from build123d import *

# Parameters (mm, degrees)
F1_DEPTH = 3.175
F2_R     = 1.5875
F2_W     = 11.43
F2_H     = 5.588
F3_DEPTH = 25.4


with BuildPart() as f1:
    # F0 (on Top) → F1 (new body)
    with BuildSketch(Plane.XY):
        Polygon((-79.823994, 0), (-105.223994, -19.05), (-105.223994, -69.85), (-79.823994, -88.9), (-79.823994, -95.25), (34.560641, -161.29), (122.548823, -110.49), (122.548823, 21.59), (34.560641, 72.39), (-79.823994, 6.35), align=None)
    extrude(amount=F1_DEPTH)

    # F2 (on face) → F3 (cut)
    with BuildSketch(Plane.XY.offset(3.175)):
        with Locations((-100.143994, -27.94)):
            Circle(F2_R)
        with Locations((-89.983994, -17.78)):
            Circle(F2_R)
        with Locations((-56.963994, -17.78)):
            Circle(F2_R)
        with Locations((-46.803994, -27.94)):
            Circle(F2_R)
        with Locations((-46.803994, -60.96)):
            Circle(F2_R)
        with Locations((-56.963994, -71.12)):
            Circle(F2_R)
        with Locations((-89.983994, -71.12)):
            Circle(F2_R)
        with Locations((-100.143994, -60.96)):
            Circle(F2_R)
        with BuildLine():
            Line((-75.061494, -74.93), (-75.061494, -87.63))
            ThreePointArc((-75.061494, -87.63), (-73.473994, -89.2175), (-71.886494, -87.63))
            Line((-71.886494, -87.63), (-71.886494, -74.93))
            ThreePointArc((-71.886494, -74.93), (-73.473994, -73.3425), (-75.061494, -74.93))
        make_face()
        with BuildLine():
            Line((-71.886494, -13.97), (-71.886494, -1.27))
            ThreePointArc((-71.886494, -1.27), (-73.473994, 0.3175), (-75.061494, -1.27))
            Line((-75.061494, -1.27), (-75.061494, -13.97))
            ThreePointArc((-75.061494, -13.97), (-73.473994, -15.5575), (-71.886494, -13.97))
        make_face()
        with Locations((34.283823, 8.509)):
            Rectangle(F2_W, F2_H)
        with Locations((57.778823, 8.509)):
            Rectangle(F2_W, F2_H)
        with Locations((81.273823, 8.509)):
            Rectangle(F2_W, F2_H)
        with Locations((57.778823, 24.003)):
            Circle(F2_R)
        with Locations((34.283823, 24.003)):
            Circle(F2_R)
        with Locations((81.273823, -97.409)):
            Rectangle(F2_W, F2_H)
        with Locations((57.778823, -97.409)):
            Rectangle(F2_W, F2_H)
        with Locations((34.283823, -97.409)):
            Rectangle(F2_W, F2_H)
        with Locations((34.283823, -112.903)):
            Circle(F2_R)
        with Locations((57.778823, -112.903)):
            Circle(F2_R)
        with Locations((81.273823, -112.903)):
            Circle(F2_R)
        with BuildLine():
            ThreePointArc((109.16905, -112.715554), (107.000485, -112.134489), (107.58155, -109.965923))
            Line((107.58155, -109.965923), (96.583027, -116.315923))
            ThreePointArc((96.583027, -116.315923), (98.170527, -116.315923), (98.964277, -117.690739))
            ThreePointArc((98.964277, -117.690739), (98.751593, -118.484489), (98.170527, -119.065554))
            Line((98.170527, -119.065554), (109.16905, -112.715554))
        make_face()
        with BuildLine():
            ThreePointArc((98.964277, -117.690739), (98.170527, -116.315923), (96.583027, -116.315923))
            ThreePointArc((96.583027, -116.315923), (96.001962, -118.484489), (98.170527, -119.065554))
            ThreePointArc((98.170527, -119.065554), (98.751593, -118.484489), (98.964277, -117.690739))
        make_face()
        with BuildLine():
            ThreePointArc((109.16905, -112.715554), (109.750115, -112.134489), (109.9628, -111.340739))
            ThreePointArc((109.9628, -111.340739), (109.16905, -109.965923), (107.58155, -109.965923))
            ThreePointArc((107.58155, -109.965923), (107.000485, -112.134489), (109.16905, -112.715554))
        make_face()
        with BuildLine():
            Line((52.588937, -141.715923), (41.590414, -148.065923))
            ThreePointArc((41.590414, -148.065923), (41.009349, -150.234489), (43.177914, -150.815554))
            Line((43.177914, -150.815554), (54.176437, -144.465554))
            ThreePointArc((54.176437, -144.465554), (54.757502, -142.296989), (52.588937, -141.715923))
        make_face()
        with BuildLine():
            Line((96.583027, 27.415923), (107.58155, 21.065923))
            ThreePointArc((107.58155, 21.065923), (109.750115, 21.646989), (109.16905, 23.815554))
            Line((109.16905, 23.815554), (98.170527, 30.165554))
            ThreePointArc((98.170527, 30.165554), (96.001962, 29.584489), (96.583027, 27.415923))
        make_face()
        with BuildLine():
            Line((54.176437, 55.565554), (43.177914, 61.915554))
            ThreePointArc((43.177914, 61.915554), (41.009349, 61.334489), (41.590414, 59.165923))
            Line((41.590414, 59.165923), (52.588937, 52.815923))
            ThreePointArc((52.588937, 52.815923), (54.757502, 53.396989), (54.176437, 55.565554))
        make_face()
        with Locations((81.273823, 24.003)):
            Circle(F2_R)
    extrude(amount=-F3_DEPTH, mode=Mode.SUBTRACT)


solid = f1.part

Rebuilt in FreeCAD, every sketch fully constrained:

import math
import FreeCAD as App
import Part
import Sketcher
Q = App.Units.Quantity

doc = App.newDocument("Part")
body = doc.addObject("PartDesign::Body", "Body")

# Sketch on XY plane
sketch1 = body.newObject("Sketcher::SketchObject", "Sketch")
sketch1.AttachmentSupport = (doc.getObject("XY_Plane"), [""])
sketch1.MapMode = "FlatFace"
sketch1.addGeometry(Part.LineSegment(App.Vector(-80, 0, 0), App.Vector(-105, -19, 0)), False)
sketch1.addGeometry(Part.LineSegment(App.Vector(-105, -19, 0), App.Vector(-105, -70, 0)), False)
sketch1.addGeometry(Part.LineSegment(App.Vector(-105, -70, 0), App.Vector(-80, -89, 0)), False)
sketch1.addGeometry(Part.LineSegment(App.Vector(-80, -89, 0), App.Vector(-80, -95, 0)), False)
sketch1.addGeometry(Part.LineSegment(App.Vector(-80, -95, 0), App.Vector(35, -161, 0)), False)
sketch1.addGeometry(Part.LineSegment(App.Vector(35, -161, 0), App.Vector(123, -110, 0)), False)
sketch1.addGeometry(Part.LineSegment(App.Vector(123, -110, 0), App.Vector(123, 22, 0)), False)
sketch1.addGeometry(Part.LineSegment(App.Vector(123, 22, 0), App.Vector(35, 72, 0)), False)
sketch1.addGeometry(Part.LineSegment(App.Vector(35, 72, 0), App.Vector(-80, 6, 0)), False)
sketch1.addGeometry(Part.LineSegment(App.Vector(-80, 6, 0), App.Vector(-80, 0, 0)), False)
sketch1.addConstraint(Sketcher.Constraint("Coincident", 0, 2, 1, 1))
sketch1.addConstraint(Sketcher.Constraint("Coincident", 1, 2, 2, 1))
sketch1.addConstraint(Sketcher.Constraint("Coincident", 2, 2, 3, 1))
sketch1.addConstraint(Sketcher.Constraint("Coincident", 3, 2, 4, 1))
sketch1.addConstraint(Sketcher.Constraint("Coincident", 4, 2, 5, 1))
sketch1.addConstraint(Sketcher.Constraint("Coincident", 5, 2, 6, 1))
sketch1.addConstraint(Sketcher.Constraint("Coincident", 6, 2, 7, 1))
sketch1.addConstraint(Sketcher.Constraint("Coincident", 7, 2, 8, 1))
sketch1.addConstraint(Sketcher.Constraint("Coincident", 8, 2, 9, 1))
sketch1.addConstraint(Sketcher.Constraint("Coincident", 9, 2, 0, 1))
sketch1.addConstraint(Sketcher.Constraint("Vertical", 1))
sketch1.addConstraint(Sketcher.Constraint("Vertical", 3))
sketch1.addConstraint(Sketcher.Constraint("Vertical", 6))
sketch1.addConstraint(Sketcher.Constraint("Vertical", 9))
sketch1.addConstraint(Sketcher.Constraint("PointOnObject", 9, 2, -1))
sketch1.addConstraint(Sketcher.Constraint("Parallel", 4, 7))
sketch1.addConstraint(Sketcher.Constraint("Parallel", 5, 8))
sketch1.addConstraint(Sketcher.Constraint("Vertical", 4, 2, 7, 2))
sketch1.addConstraint(Sketcher.Constraint("Vertical", 3, 2, 8, 2))
sketch1.addConstraint(Sketcher.Constraint("Equal", 3, 9))
sketch1.addConstraint(Sketcher.Constraint("Equal", 0, 2))
sketch1.addConstraint(Sketcher.Constraint("Equal", 5, 7))
sketch1.addConstraint(Sketcher.Constraint("DistanceY", 1, 2, 1, 1, Q("2 in")))
sketch1.addConstraint(Sketcher.Constraint("Distance", 5, Q("4 in")))
sketch1.addConstraint(Sketcher.Constraint("DistanceY", 6, 1, 6, 2, Q("5.2 in")))
sketch1.addConstraint(Sketcher.Constraint("Angle", 4, Q("-30 deg")))
sketch1.addConstraint(Sketcher.Constraint("DistanceX", 1, 2, 2, 2, Q("1 in")))
sketch1.addConstraint(Sketcher.Constraint("DistanceY", 3, 2, 1, 2, Q("1 in")))
sketch1.addConstraint(Sketcher.Constraint("DistanceY", 3, 2, 3, 1, Q("0.25 in")))
sketch1.addConstraint(Sketcher.Constraint("DistanceX", -1, 1, 4, 2, 34.560641))
pad1 = body.newObject("PartDesign::Pad", "Pad")
pad1.Profile = sketch1
pad1.Length = Q("0.125 in")

# Sketch on XY plane
sketch2 = body.newObject("Sketcher::SketchObject", "Sketch001")
sketch2.AttachmentSupport = (doc.getObject("XY_Plane"), [""])
sketch2.MapMode = "FlatFace"
sketch2.AttachmentOffset = App.Placement(App.Vector(0, 0, 0.125 * 25.4), App.Rotation())
sketch2.addGeometry(Part.Circle(App.Vector(-100.1, -27.9, 0), App.Vector(0, 0, 1), 1.6), False)
sketch2.addGeometry(Part.Circle(App.Vector(-90, -17.8, 0), App.Vector(0, 0, 1), 1.6), False)
sketch2.addGeometry(Part.Circle(App.Vector(-57, -17.8, 0), App.Vector(0, 0, 1), 1.6), False)
sketch2.addGeometry(Part.Circle(App.Vector(-46.8, -27.9, 0), App.Vector(0, 0, 1), 1.6), False)
sketch2.addGeometry(Part.Circle(App.Vector(-46.8, -61, 0), App.Vector(0, 0, 1), 1.6), False)
sketch2.addGeometry(Part.Circle(App.Vector(-57, -71.1, 0), App.Vector(0, 0, 1), 1.6), False)
sketch2.addGeometry(Part.Circle(App.Vector(-90, -71.1, 0), App.Vector(0, 0, 1), 1.6), False)
sketch2.addGeometry(Part.Circle(App.Vector(-100.1, -61, 0), App.Vector(0, 0, 1), 1.6), False)
sketch2.addGeometry(Part.LineSegment(App.Vector(-75.1, -74.9, 0), App.Vector(-75.1, -87.6, 0)), False)
sketch2.addGeometry(Part.ArcOfCircle(Part.Circle(App.Vector(-73.5, -87.6, 0), App.Vector(0, 0, 1), 1.6), math.radians(180), math.radians(360)), False)
sketch2.addGeometry(Part.LineSegment(App.Vector(-71.9, -87.6, 0), App.Vector(-71.9, -74.9, 0)), False)
sketch2.addGeometry(Part.ArcOfCircle(Part.Circle(App.Vector(-73.5, -74.9, 0), App.Vector(0, 0, 1), 1.6), math.radians(0), math.radians(180)), False)
sketch2.addGeometry(Part.LineSegment(App.Vector(-71.9, -14, 0), App.Vector(-71.9, -1.3, 0)), False)
sketch2.addGeometry(Part.ArcOfCircle(Part.Circle(App.Vector(-73.5, -1.3, 0), App.Vector(0, 0, 1), 1.6), math.radians(0), math.radians(180)), False)
sketch2.addGeometry(Part.LineSegment(App.Vector(-75.1, -1.3, 0), App.Vector(-75.1, -14, 0)), False)
sketch2.addGeometry(Part.ArcOfCircle(Part.Circle(App.Vector(-73.5, -14, 0), App.Vector(0, 0, 1), 1.6), math.radians(180), math.radians(360)), False)
sketch2.addGeometry(Part.LineSegment(App.Vector(28.6, 11.3, 0), App.Vector(28.6, 5.7, 0)), False)
sketch2.addGeometry(Part.LineSegment(App.Vector(28.6, 5.7, 0), App.Vector(40, 5.7, 0)), False)
sketch2.addGeometry(Part.LineSegment(App.Vector(40, 5.7, 0), App.Vector(40, 11.3, 0)), False)
sketch2.addGeometry(Part.LineSegment(App.Vector(40, 11.3, 0), App.Vector(28.6, 11.3, 0)), False)
sketch2.addGeometry(Part.LineSegment(App.Vector(52.1, 11.3, 0), App.Vector(52.1, 5.7, 0)), False)
sketch2.addGeometry(Part.LineSegment(App.Vector(52.1, 5.7, 0), App.Vector(63.5, 5.7, 0)), False)
sketch2.addGeometry(Part.LineSegment(App.Vector(63.5, 5.7, 0), App.Vector(63.5, 11.3, 0)), False)
sketch2.addGeometry(Part.LineSegment(App.Vector(63.5, 11.3, 0), App.Vector(52.1, 11.3, 0)), False)
sketch2.addGeometry(Part.LineSegment(App.Vector(75.6, 11.3, 0), App.Vector(75.6, 5.7, 0)), False)
sketch2.addGeometry(Part.LineSegment(App.Vector(75.6, 5.7, 0), App.Vector(87, 5.7, 0)), False)
sketch2.addGeometry(Part.LineSegment(App.Vector(87, 5.7, 0), App.Vector(87, 11.3, 0)), False)
sketch2.addGeometry(Part.LineSegment(App.Vector(87, 11.3, 0), App.Vector(75.6, 11.3, 0)), False)
sketch2.addGeometry(Part.Circle(App.Vector(57.8, 24, 0), App.Vector(0, 0, 1), 1.6), False)
sketch2.addGeometry(Part.Circle(App.Vector(34.3, 24, 0), App.Vector(0, 0, 1), 1.6), False)
sketch2.addGeometry(Part.LineSegment(App.Vector(75.6, -94.6, 0), App.Vector(75.6, -100.2, 0)), False)
sketch2.addGeometry(Part.LineSegment(App.Vector(75.6, -100.2, 0), App.Vector(87, -100.2, 0)), False)
sketch2.addGeometry(Part.LineSegment(App.Vector(87, -100.2, 0), App.Vector(87, -94.6, 0)), False)
sketch2.addGeometry(Part.LineSegment(App.Vector(87, -94.6, 0), App.Vector(75.6, -94.6, 0)), False)
sketch2.addGeometry(Part.LineSegment(App.Vector(52.1, -94.6, 0), App.Vector(52.1, -100.2, 0)), False)
sketch2.addGeometry(Part.LineSegment(App.Vector(52.1, -100.2, 0), App.Vector(63.5, -100.2, 0)), False)
sketch2.addGeometry(Part.LineSegment(App.Vector(63.5, -100.2, 0), App.Vector(63.5, -94.6, 0)), False)
sketch2.addGeometry(Part.LineSegment(App.Vector(63.5, -94.6, 0), App.Vector(52.1, -94.6, 0)), False)
sketch2.addGeometry(Part.LineSegment(App.Vector(28.6, -94.6, 0), App.Vector(28.6, -100.2, 0)), False)
sketch2.addGeometry(Part.LineSegment(App.Vector(28.6, -100.2, 0), App.Vector(40, -100.2, 0)), False)
sketch2.addGeometry(Part.LineSegment(App.Vector(40, -100.2, 0), App.Vector(40, -94.6, 0)), False)
sketch2.addGeometry(Part.LineSegment(App.Vector(40, -94.6, 0), App.Vector(28.6, -94.6, 0)), False)
sketch2.addGeometry(Part.Circle(App.Vector(34.3, -112.9, 0), App.Vector(0, 0, 1), 1.6), False)
sketch2.addGeometry(Part.Circle(App.Vector(57.8, -112.9, 0), App.Vector(0, 0, 1), 1.6), False)
sketch2.addGeometry(Part.Circle(App.Vector(81.3, -112.9, 0), App.Vector(0, 0, 1), 1.6), False)
sketch2.addGeometry(Part.LineSegment(App.Vector(107.6, -110, 0), App.Vector(96.6, -116.3, 0)), False)
sketch2.addGeometry(Part.ArcOfCircle(Part.Circle(App.Vector(97.4, -117.7, 0), App.Vector(0, 0, 1), 1.6), math.radians(120), math.radians(300)), False)
sketch2.addGeometry(Part.LineSegment(App.Vector(98.2, -119.1, 0), App.Vector(109.2, -112.7, 0)), False)
sketch2.addGeometry(Part.ArcOfCircle(Part.Circle(App.Vector(108.4, -111.3, 0), App.Vector(0, 0, 1), 1.6), math.radians(-60), math.radians(0)), False)
sketch2.addGeometry(Part.ArcOfCircle(Part.Circle(App.Vector(108.4, -111.3, 0), App.Vector(0, 0, 1), 1.6), math.radians(0), math.radians(120)), False)
sketch2.addGeometry(Part.LineSegment(App.Vector(52.6, -141.7, 0), App.Vector(41.6, -148.1, 0)), False)
sketch2.addGeometry(Part.ArcOfCircle(Part.Circle(App.Vector(42.4, -149.4, 0), App.Vector(0, 0, 1), 1.6), math.radians(120), math.radians(300)), False)
sketch2.addGeometry(Part.LineSegment(App.Vector(43.2, -150.8, 0), App.Vector(54.2, -144.5, 0)), False)
sketch2.addGeometry(Part.ArcOfCircle(Part.Circle(App.Vector(53.4, -143.1, 0), App.Vector(0, 0, 1), 1.6), math.radians(-60), math.radians(120)), False)
sketch2.addGeometry(Part.LineSegment(App.Vector(96.6, 27.4, 0), App.Vector(107.6, 21.1, 0)), False)
sketch2.addGeometry(Part.ArcOfCircle(Part.Circle(App.Vector(108.4, 22.4, 0), App.Vector(0, 0, 1), 1.6), math.radians(-120), math.radians(60)), False)
sketch2.addGeometry(Part.LineSegment(App.Vector(109.2, 23.8, 0), App.Vector(98.2, 30.2, 0)), False)
sketch2.addGeometry(Part.ArcOfCircle(Part.Circle(App.Vector(97.4, 28.8, 0), App.Vector(0, 0, 1), 1.6), math.radians(60), math.radians(240)), False)
sketch2.addGeometry(Part.LineSegment(App.Vector(54.2, 55.6, 0), App.Vector(43.2, 61.9, 0)), False)
sketch2.addGeometry(Part.ArcOfCircle(Part.Circle(App.Vector(42.4, 60.5, 0), App.Vector(0, 0, 1), 1.6), math.radians(60), math.radians(240)), False)
sketch2.addGeometry(Part.LineSegment(App.Vector(41.6, 59.2, 0), App.Vector(52.6, 52.8, 0)), False)
sketch2.addGeometry(Part.ArcOfCircle(Part.Circle(App.Vector(53.4, 54.2, 0), App.Vector(0, 0, 1), 1.6), math.radians(-120), math.radians(60)), False)
sketch2.addGeometry(Part.Circle(App.Vector(81.3, 24, 0), App.Vector(0, 0, 1), 1.6), False)
sketch2.addConstraint(Sketcher.Constraint("Tangent", 8, 2, 9, 1))
sketch2.addConstraint(Sketcher.Constraint("Tangent", 9, 2, 10, 1))
sketch2.addConstraint(Sketcher.Constraint("Tangent", 10, 2, 11, 1))
sketch2.addConstraint(Sketcher.Constraint("Tangent", 11, 2, 8, 1))
sketch2.addConstraint(Sketcher.Constraint("Tangent", 12, 2, 13, 1))
sketch2.addConstraint(Sketcher.Constraint("Tangent", 13, 2, 14, 1))
sketch2.addConstraint(Sketcher.Constraint("Tangent", 14, 2, 15, 1))
sketch2.addConstraint(Sketcher.Constraint("Tangent", 15, 2, 12, 1))
sketch2.addConstraint(Sketcher.Constraint("Coincident", 16, 2, 17, 1))
sketch2.addConstraint(Sketcher.Constraint("Coincident", 17, 2, 18, 1))
sketch2.addConstraint(Sketcher.Constraint("Coincident", 18, 2, 19, 1))
sketch2.addConstraint(Sketcher.Constraint("Coincident", 19, 2, 16, 1))
sketch2.addConstraint(Sketcher.Constraint("Coincident", 20, 2, 21, 1))
sketch2.addConstraint(Sketcher.Constraint("Coincident", 21, 2, 22, 1))
sketch2.addConstraint(Sketcher.Constraint("Coincident", 22, 2, 23, 1))
sketch2.addConstraint(Sketcher.Constraint("Coincident", 23, 2, 20, 1))
sketch2.addConstraint(Sketcher.Constraint("Coincident", 24, 2, 25, 1))
sketch2.addConstraint(Sketcher.Constraint("Coincident", 25, 2, 26, 1))
sketch2.addConstraint(Sketcher.Constraint("Coincident", 26, 2, 27, 1))
sketch2.addConstraint(Sketcher.Constraint("Coincident", 27, 2, 24, 1))
sketch2.addConstraint(Sketcher.Constraint("Coincident", 30, 2, 31, 1))
sketch2.addConstraint(Sketcher.Constraint("Coincident", 31, 2, 32, 1))
sketch2.addConstraint(Sketcher.Constraint("Coincident", 32, 2, 33, 1))
sketch2.addConstraint(Sketcher.Constraint("Coincident", 33, 2, 30, 1))
sketch2.addConstraint(Sketcher.Constraint("Coincident", 34, 2, 35, 1))
sketch2.addConstraint(Sketcher.Constraint("Coincident", 35, 2, 36, 1))
sketch2.addConstraint(Sketcher.Constraint("Coincident", 36, 2, 37, 1))
sketch2.addConstraint(Sketcher.Constraint("Coincident", 37, 2, 34, 1))
sketch2.addConstraint(Sketcher.Constraint("Coincident", 38, 2, 39, 1))
sketch2.addConstraint(Sketcher.Constraint("Coincident", 39, 2, 40, 1))
sketch2.addConstraint(Sketcher.Constraint("Coincident", 40, 2, 41, 1))
sketch2.addConstraint(Sketcher.Constraint("Coincident", 41, 2, 38, 1))
sketch2.addConstraint(Sketcher.Constraint("Tangent", 45, 2, 46, 1))
sketch2.addConstraint(Sketcher.Constraint("Tangent", 46, 2, 47, 1))
sketch2.addConstraint(Sketcher.Constraint("Tangent", 47, 2, 48, 1))
sketch2.addConstraint(Sketcher.Constraint("Tangent", 48, 2, 49, 1))
sketch2.addConstraint(Sketcher.Constraint("Tangent", 49, 2, 45, 1))
sketch2.addConstraint(Sketcher.Constraint("Tangent", 50, 2, 51, 1))
sketch2.addConstraint(Sketcher.Constraint("Tangent", 51, 2, 52, 1))
sketch2.addConstraint(Sketcher.Constraint("Tangent", 52, 2, 53, 1))
sketch2.addConstraint(Sketcher.Constraint("Tangent", 53, 2, 50, 1))
sketch2.addConstraint(Sketcher.Constraint("Tangent", 54, 2, 55, 1))
sketch2.addConstraint(Sketcher.Constraint("Tangent", 55, 2, 56, 1))
sketch2.addConstraint(Sketcher.Constraint("Tangent", 56, 2, 57, 1))
sketch2.addConstraint(Sketcher.Constraint("Tangent", 57, 2, 54, 1))
sketch2.addConstraint(Sketcher.Constraint("Tangent", 58, 2, 59, 1))
sketch2.addConstraint(Sketcher.Constraint("Tangent", 59, 2, 60, 1))
sketch2.addConstraint(Sketcher.Constraint("Tangent", 60, 2, 61, 1))
sketch2.addConstraint(Sketcher.Constraint("Tangent", 61, 2, 58, 1))
sketch2.addConstraint(Sketcher.Constraint("Vertical", 8))
sketch2.addConstraint(Sketcher.Constraint("Vertical", 10))
sketch2.addConstraint(Sketcher.Constraint("Vertical", 12))
sketch2.addConstraint(Sketcher.Constraint("Vertical", 14))
sketch2.addConstraint(Sketcher.Constraint("Vertical", 16))
sketch2.addConstraint(Sketcher.Constraint("Horizontal", 17))
sketch2.addConstraint(Sketcher.Constraint("Vertical", 18))
sketch2.addConstraint(Sketcher.Constraint("Horizontal", 19))
sketch2.addConstraint(Sketcher.Constraint("Vertical", 20))
sketch2.addConstraint(Sketcher.Constraint("Horizontal", 21))
sketch2.addConstraint(Sketcher.Constraint("Vertical", 22))
sketch2.addConstraint(Sketcher.Constraint("Horizontal", 23))
sketch2.addConstraint(Sketcher.Constraint("Vertical", 24))
sketch2.addConstraint(Sketcher.Constraint("Horizontal", 25))
sketch2.addConstraint(Sketcher.Constraint("Vertical", 26))
sketch2.addConstraint(Sketcher.Constraint("Horizontal", 27))
sketch2.addConstraint(Sketcher.Constraint("Vertical", 30))
sketch2.addConstraint(Sketcher.Constraint("Horizontal", 31))
sketch2.addConstraint(Sketcher.Constraint("Vertical", 32))
sketch2.addConstraint(Sketcher.Constraint("Horizontal", 33))
sketch2.addConstraint(Sketcher.Constraint("Vertical", 34))
sketch2.addConstraint(Sketcher.Constraint("Horizontal", 35))
sketch2.addConstraint(Sketcher.Constraint("Vertical", 36))
sketch2.addConstraint(Sketcher.Constraint("Horizontal", 37))
sketch2.addConstraint(Sketcher.Constraint("Vertical", 38))
sketch2.addConstraint(Sketcher.Constraint("Horizontal", 39))
sketch2.addConstraint(Sketcher.Constraint("Vertical", 40))
sketch2.addConstraint(Sketcher.Constraint("Horizontal", 41))
sketch2.addConstraint(Sketcher.Constraint("Equal", 0, 1))
sketch2.addConstraint(Sketcher.Constraint("Equal", 1, 2))
sketch2.addConstraint(Sketcher.Constraint("Equal", 2, 3))
sketch2.addConstraint(Sketcher.Constraint("Equal", 3, 4))
sketch2.addConstraint(Sketcher.Constraint("Equal", 4, 5))
sketch2.addConstraint(Sketcher.Constraint("Equal", 5, 6))
sketch2.addConstraint(Sketcher.Constraint("Equal", 6, 7))
sketch2.addConstraint(Sketcher.Constraint("Equal", 7, 9))
sketch2.addConstraint(Sketcher.Constraint("Equal", 11, 13))
sketch2.addConstraint(Sketcher.Constraint("Equal", 15, 28))
sketch2.addConstraint(Sketcher.Constraint("Equal", 28, 29))
sketch2.addConstraint(Sketcher.Constraint("Equal", 29, 42))
sketch2.addConstraint(Sketcher.Constraint("Equal", 42, 43))
sketch2.addConstraint(Sketcher.Constraint("Equal", 43, 44))
sketch2.addConstraint(Sketcher.Constraint("Equal", 44, 46))
sketch2.addConstraint(Sketcher.Constraint("Equal", 46, 48))
sketch2.addConstraint(Sketcher.Constraint("Equal", 48, 49))
sketch2.addConstraint(Sketcher.Constraint("Equal", 49, 51))
sketch2.addConstraint(Sketcher.Constraint("Equal", 51, 53))
sketch2.addConstraint(Sketcher.Constraint("Equal", 53, 55))
sketch2.addConstraint(Sketcher.Constraint("Equal", 55, 57))
sketch2.addConstraint(Sketcher.Constraint("Equal", 57, 59))
sketch2.addConstraint(Sketcher.Constraint("Equal", 59, 61))
sketch2.addConstraint(Sketcher.Constraint("Equal", 61, 62))
sketch2.addConstraint(Sketcher.Constraint("Parallel", 47, 50))
sketch2.addConstraint(Sketcher.Constraint("Parallel", 56, 58))
sketch2.addConstraint(Sketcher.Constraint("Horizontal", 1, 3, 2, 3))
sketch2.addConstraint(Sketcher.Constraint("Horizontal", 0, 3, 3, 3))
sketch2.addConstraint(Sketcher.Constraint("Horizontal", 5, 3, 6, 3))
sketch2.addConstraint(Sketcher.Constraint("Horizontal", 4, 3, 7, 3))
sketch2.addConstraint(Sketcher.Constraint("Horizontal", 28, 3, 29, 3))
sketch2.addConstraint(Sketcher.Constraint("Horizontal", 42, 3, 43, 3))
sketch2.addConstraint(Sketcher.Constraint("Horizontal", 43, 3, 44, 3))
sketch2.addConstraint(Sketcher.Constraint("Horizontal", 29, 3, 62, 3))
sketch2.addConstraint(Sketcher.Constraint("Horizontal", 17, 2, 20, 2))
sketch2.addConstraint(Sketcher.Constraint("Horizontal", 19, 2, 22, 2))
sketch2.addConstraint(Sketcher.Constraint("Horizontal", 21, 2, 24, 2))
sketch2.addConstraint(Sketcher.Constraint("Horizontal", 23, 2, 26, 2))
sketch2.addConstraint(Sketcher.Constraint("Horizontal", 31, 2, 34, 2))
sketch2.addConstraint(Sketcher.Constraint("Horizontal", 33, 2, 36, 2))
sketch2.addConstraint(Sketcher.Constraint("Horizontal", 35, 2, 38, 2))
sketch2.addConstraint(Sketcher.Constraint("Horizontal", 37, 2, 40, 2))
sketch2.addConstraint(Sketcher.Constraint("Horizontal", 49, 3, 48, 2))
sketch2.addConstraint(Sketcher.Constraint("Vertical", 3, 3, 4, 3))
sketch2.addConstraint(Sketcher.Constraint("Vertical", 2, 3, 5, 3))
sketch2.addConstraint(Sketcher.Constraint("Vertical", 1, 3, 6, 3))
sketch2.addConstraint(Sketcher.Constraint("Vertical", 0, 3, 7, 3))
sketch2.addConstraint(Sketcher.Constraint("Vertical", 11, 3, 13, 3))
sketch2.addConstraint(Sketcher.Constraint("Vertical", 29, 3, 42, 3))
sketch2.addConstraint(Sketcher.Constraint("Vertical", 28, 3, 43, 3))
sketch2.addConstraint(Sketcher.Constraint("Vertical", 49, 3, 55, 3))
sketch2.addConstraint(Sketcher.Constraint("Vertical", 46, 3, 57, 3))
sketch2.addConstraint(Sketcher.Constraint("Vertical", 51, 3, 59, 3))
sketch2.addConstraint(Sketcher.Constraint("Vertical", 53, 3, 61, 3))
sketch2.addConstraint(Sketcher.Constraint("Vertical", 44, 3, 62, 3))
sketch2.addConstraint(Sketcher.Constraint("Vertical", 27, 2, 30, 2))
sketch2.addConstraint(Sketcher.Constraint("Vertical", 26, 2, 31, 2))
sketch2.addConstraint(Sketcher.Constraint("Vertical", 23, 2, 34, 2))
sketch2.addConstraint(Sketcher.Constraint("Vertical", 22, 2, 35, 2))
sketch2.addConstraint(Sketcher.Constraint("Vertical", 19, 2, 38, 2))
sketch2.addConstraint(Sketcher.Constraint("Vertical", 18, 2, 39, 2))
sketch2.addConstraint(Sketcher.Constraint("Vertical", 49, 2, 54, 2))
sketch2.addConstraint(Sketcher.Constraint("Equal", 19, 21))
sketch2.addConstraint(Sketcher.Constraint("Equal", 23, 25))
sketch2.addConstraint(Sketcher.Constraint("Equal", 10, 12))
sketch2.addConstraint(Sketcher.Constraint("Equal", 26, 30))
sketch2.addConstraint(Sketcher.Constraint("Equal", 47, 50))
sketch2.addConstraint(Sketcher.Constraint("Diameter", 0, Q("0.125 in")))
sketch2.addConstraint(Sketcher.Constraint("DistanceY", 8, 2, 8, 1, Q("0.5 in")))
sketch2.addConstraint(Sketcher.Constraint("Angle", 45, Q("-150.000001 deg")))
sketch2.addConstraint(Sketcher.Constraint("Distance", 45, Q("0.5 in")))
sketch2.addConstraint(Sketcher.Constraint("DistanceX", 17, 1, 17, 2, Q("0.45 in")))
sketch2.addConstraint(Sketcher.Constraint("DistanceY", 16, 2, 16, 1, Q("0.22 in")))
sketch2.addConstraint(Sketcher.Constraint("DistanceY", 0, 3, -1, 1, Q("1.1 in")))
sketch2.addConstraint(Sketcher.Constraint("DistanceY", 1, 3, -1, 1, Q("0.7 in")))
sketch2.addConstraint(Sketcher.Constraint("DistanceY", 4, 3, -1, 1, Q("2.4 in")))
sketch2.addConstraint(Sketcher.Constraint("DistanceY", 5, 3, -1, 1, Q("2.8 in")))
sketch2.addConstraint(Sketcher.Constraint("DistanceY", 9, 3, -1, 1, Q("3.45 in")))
sketch2.addConstraint(Sketcher.Constraint("DistanceY", 13, 3, -1, 1, Q("0.05 in")))
sketch2.addConstraint(Sketcher.Constraint("DistanceY", -1, 1, 28, 3, Q("0.945 in")))
sketch2.addConstraint(Sketcher.Constraint("DistanceY", 42, 3, -1, 1, Q("4.445 in")))
sketch2.addConstraint(Sketcher.Constraint("DistanceY", -1, 1, 16, 2, Q("0.225 in")))
sketch2.addConstraint(Sketcher.Constraint("DistanceY", 30, 2, -1, 1, Q("3.945 in")))
sketch2.addConstraint(Sketcher.Constraint("DistanceX", -1, 1, 48, 3, 108.375299))
sketch2.addConstraint(Sketcher.Constraint("DistanceY", 46, 3, -1, 1, 117.690738))
sketch2.addConstraint(Sketcher.Constraint("DistanceY", 51, 3, -1, 1, 149.440738))
sketch2.addConstraint(Sketcher.Constraint("DistanceY", -1, 1, 55, 3, 22.440739))
sketch2.addConstraint(Sketcher.Constraint("DistanceY", -1, 1, 59, 3, 60.540738))
sketch2.addConstraint(Sketcher.Constraint("DistanceX", 0, 3, -1, 1, 100.143994))
sketch2.addConstraint(Sketcher.Constraint("DistanceX", 1, 3, -1, 1, 89.983994))
sketch2.addConstraint(Sketcher.Constraint("DistanceX", 2, 3, -1, 1, 56.963994))
sketch2.addConstraint(Sketcher.Constraint("DistanceX", 3, 3, -1, 1, 46.803994))
sketch2.addConstraint(Sketcher.Constraint("DistanceX", 9, 3, -1, 1, 73.473994))
sketch2.addConstraint(Sketcher.Constraint("DistanceX", -1, 1, 28, 3, 57.778823))
sketch2.addConstraint(Sketcher.Constraint("DistanceX", -1, 1, 29, 3, 34.283823))
sketch2.addConstraint(Sketcher.Constraint("DistanceX", -1, 1, 44, 3, 81.273823))
sketch2.addConstraint(Sketcher.Constraint("DistanceX", -1, 1, 51, 3, 42.384164))
sketch2.addConstraint(Sketcher.Constraint("DistanceX", -1, 1, 16, 2, 28.568823))
sketch2.addConstraint(Sketcher.Constraint("DistanceX", -1, 1, 20, 2, 52.063823))
sketch2.addConstraint(Sketcher.Constraint("DistanceX", -1, 1, 24, 2, 75.558823))
pocket1 = body.newObject("PartDesign::Pocket", "Pocket")
pocket1.Profile = sketch2
pocket1.Length = Q("1 in")

doc.recompute()
